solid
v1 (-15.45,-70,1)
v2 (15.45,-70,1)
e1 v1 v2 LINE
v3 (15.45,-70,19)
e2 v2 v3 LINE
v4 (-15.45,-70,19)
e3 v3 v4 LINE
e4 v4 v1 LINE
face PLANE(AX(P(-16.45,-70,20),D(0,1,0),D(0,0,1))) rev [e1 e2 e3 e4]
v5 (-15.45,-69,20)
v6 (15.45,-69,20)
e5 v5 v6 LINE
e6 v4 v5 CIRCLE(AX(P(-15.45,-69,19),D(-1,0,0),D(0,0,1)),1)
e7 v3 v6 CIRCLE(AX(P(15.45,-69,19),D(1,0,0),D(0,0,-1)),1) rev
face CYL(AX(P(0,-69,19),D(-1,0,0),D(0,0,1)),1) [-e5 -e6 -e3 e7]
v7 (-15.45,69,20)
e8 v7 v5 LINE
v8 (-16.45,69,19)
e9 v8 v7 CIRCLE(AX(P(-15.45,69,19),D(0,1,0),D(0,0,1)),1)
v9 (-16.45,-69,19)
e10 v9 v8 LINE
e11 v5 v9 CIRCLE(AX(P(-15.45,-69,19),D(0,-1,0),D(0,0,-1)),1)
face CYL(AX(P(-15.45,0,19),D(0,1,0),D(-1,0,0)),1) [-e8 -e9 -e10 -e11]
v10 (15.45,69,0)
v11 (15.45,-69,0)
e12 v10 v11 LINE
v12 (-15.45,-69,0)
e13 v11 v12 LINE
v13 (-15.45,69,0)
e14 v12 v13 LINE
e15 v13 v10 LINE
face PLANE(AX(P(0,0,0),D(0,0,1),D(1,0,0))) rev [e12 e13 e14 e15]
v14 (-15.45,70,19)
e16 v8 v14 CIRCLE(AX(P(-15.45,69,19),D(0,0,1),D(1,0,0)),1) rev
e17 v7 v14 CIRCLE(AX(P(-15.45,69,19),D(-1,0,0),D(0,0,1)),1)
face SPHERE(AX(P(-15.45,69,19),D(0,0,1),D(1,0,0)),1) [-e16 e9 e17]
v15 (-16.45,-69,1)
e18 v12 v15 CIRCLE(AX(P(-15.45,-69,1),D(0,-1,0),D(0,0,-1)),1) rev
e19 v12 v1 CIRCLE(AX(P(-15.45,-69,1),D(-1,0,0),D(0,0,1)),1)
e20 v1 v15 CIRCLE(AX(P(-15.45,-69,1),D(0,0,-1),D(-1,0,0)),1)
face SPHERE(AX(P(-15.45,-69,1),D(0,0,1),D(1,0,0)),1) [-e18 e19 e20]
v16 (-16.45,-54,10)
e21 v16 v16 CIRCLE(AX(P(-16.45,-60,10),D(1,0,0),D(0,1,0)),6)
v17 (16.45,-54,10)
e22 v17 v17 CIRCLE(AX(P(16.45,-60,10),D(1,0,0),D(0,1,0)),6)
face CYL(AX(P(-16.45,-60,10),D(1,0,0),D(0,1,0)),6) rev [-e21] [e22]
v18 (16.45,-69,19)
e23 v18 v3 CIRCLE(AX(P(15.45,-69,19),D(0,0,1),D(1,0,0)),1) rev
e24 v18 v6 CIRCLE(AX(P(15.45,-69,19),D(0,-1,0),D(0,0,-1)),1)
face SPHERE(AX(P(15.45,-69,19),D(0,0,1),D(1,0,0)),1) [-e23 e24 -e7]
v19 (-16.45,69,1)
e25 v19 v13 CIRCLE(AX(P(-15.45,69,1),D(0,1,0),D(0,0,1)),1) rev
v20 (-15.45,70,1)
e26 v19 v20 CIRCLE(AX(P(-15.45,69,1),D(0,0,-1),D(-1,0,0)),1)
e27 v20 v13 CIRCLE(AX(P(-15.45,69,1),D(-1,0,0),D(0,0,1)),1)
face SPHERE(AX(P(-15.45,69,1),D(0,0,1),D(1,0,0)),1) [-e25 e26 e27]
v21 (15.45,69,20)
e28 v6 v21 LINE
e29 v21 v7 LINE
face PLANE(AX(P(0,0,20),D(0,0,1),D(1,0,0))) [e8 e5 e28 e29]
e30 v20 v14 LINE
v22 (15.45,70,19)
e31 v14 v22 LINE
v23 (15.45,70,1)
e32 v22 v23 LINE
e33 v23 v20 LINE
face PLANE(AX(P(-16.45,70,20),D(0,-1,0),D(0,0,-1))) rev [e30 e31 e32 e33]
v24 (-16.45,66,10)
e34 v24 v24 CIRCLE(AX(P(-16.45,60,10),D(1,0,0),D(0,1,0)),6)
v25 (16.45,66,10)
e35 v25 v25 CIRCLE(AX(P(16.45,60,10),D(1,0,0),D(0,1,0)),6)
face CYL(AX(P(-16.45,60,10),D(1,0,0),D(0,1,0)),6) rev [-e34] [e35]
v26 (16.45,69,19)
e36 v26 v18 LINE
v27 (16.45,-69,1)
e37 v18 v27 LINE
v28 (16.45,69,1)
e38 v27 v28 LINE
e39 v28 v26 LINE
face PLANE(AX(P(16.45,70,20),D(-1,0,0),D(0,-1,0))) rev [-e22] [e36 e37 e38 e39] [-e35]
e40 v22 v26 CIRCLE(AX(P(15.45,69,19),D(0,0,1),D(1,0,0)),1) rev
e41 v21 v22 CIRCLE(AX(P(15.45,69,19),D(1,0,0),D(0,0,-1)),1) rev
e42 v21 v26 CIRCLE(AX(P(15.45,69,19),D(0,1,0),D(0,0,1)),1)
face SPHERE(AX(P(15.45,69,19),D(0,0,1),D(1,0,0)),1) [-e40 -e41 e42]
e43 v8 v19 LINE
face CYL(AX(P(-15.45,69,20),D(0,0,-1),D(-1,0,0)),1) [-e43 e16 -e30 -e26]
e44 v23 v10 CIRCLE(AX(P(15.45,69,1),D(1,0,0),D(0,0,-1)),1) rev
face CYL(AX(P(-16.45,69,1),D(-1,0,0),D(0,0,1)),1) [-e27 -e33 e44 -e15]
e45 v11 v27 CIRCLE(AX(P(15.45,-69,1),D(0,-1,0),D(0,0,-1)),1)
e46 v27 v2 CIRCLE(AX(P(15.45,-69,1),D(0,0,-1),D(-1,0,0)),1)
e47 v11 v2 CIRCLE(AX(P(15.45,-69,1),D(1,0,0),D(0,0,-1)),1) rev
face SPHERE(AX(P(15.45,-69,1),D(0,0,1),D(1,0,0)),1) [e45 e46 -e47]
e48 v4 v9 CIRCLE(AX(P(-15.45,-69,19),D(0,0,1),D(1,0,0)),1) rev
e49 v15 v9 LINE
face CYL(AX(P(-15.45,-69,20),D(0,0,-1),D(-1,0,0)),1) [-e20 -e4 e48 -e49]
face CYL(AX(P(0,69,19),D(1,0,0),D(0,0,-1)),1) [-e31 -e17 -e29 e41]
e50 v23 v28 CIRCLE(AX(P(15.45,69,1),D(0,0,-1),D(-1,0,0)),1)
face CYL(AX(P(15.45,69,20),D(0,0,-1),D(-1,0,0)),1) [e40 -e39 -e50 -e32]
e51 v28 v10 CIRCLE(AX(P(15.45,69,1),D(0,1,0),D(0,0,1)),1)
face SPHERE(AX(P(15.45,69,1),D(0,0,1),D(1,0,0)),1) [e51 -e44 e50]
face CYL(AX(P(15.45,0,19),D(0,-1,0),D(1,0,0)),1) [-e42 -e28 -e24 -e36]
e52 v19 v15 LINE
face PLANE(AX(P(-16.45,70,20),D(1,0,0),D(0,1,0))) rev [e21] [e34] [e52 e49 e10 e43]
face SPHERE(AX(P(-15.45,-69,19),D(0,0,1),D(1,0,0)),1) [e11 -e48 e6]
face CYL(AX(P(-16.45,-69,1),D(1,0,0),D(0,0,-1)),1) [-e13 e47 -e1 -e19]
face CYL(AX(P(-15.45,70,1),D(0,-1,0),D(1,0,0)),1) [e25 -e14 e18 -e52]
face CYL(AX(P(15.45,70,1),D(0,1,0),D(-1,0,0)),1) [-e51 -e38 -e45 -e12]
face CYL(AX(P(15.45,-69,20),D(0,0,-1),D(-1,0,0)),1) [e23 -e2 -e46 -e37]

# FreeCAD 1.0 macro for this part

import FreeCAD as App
import Part
import Sketcher
Q = App.Units.Quantity


def edges_at(feature, points):
    """Names of the edges that pass closest to the given points."""
    edges = feature.Shape.Edges
    near = lambda p: min(range(len(edges)), key=lambda i: edges[i].distToShape(Part.Vertex(*p))[0])
    return sorted({f"Edge{near(p) + 1}" for p in points})

doc = App.newDocument("Part")
params = doc.addObject("Spreadsheet::Sheet", "Params")
for row, (alias, value) in enumerate([
    ("sketch1_height", "140 mm"),
    ("sketch1_width", "32.9 mm"),
    ("pad1_length", "20 mm"),
    ("sketch2_diameter", "12 mm"),
    ("fillet_radius", "1 mm"),
], start=1):
    params.set(f"A{row}", alias)
    params.set(f"B{row}", "=" + value)
    params.setAlias(f"B{row}", alias)

body = doc.addObject("PartDesign::Body", "Body")

# Sketch on XY plane
sketch1 = body.newObject("Sketcher::SketchObject", "Sketch")
sketch1.AttachmentSupport = (doc.getObject("XY_Plane"), [""])
sketch1.MapMode = "FlatFace"
sketch1.addGeometry([
    Part.LineSegment(App.Vector(-16.45, 70, 0), App.Vector(-16.45, -70, 0)),
    Part.LineSegment(App.Vector(-16.45, -70, 0), App.Vector(16.45, -70, 0)),
    Part.LineSegment(App.Vector(16.45, -70, 0), App.Vector(16.45, 70, 0)),
    Part.LineSegment(App.Vector(16.45, 70, 0), App.Vector(-16.45, 70, 0)),
], False)
sketch1.addConstraint([
    Sketcher.Constraint("Coincident", 0, 2, 1, 1),
    Sketcher.Constraint("Coincident", 1, 2, 2, 1),
    Sketcher.Constraint("Coincident", 2, 2, 3, 1),
    Sketcher.Constraint("Coincident", 3, 2, 0, 1),
    Sketcher.Constraint("Vertical", 0),
    Sketcher.Constraint("Horizontal", 1),
    Sketcher.Constraint("Vertical", 2),
    Sketcher.Constraint("Horizontal", 3),
    Sketcher.Constraint("Symmetric", 0, 2, 2, 2, -1, 1),
    Sketcher.Constraint("DistanceY", 0, 2, 0, 1, Q("140 mm")),
    Sketcher.Constraint("DistanceX", 1, 1, 1, 2, Q("32.9 mm")),
])
sketch1.setExpression("Constraints[9]", "Params.sketch1_height")
sketch1.setExpression("Constraints[10]", "Params.sketch1_width")
pad1 = body.newObject("PartDesign::Pad", "Pad")
pad1.Profile = sketch1
pad1.setExpression("Length", "Params.pad1_length")

# Sketch on YZ plane
sketch2 = body.newObject("Sketcher::SketchObject", "Sketch001")
sketch2.AttachmentSupport = (doc.getObject("YZ_Plane"), [""])
sketch2.MapMode = "FlatFace"
sketch2.AttachmentOffset = App.Placement(App.Vector(0, 0, 16.45), App.Rotation())
sketch2.addGeometry([
    Part.Circle(App.Vector(60, 10, 0), App.Vector(0, 0, 1), 6),
    Part.Circle(App.Vector(-60, 10, 0), App.Vector(0, 0, 1), 6),
], False)
sketch2.addConstraint([
    Sketcher.Constraint("Equal", 0, 1),
    Sketcher.Constraint("Symmetric", 0, 3, 1, 3, -2),
    Sketcher.Constraint("Diameter", 0, Q("12 mm")),
    Sketcher.Constraint("DistanceX", -1, 1, 0, 3, Q("60 mm")),
    Sketcher.Constraint("DistanceY", -1, 1, 0, 3, Q("10 mm")),
])
sketch2.setExpression("Constraints[2]", "Params.sketch2_diameter")
pocket1 = body.newObject("PartDesign::Pocket", "Pocket")
pocket1.Profile = sketch2
pocket1.Type = "ThroughAll"
doc.recompute()

fillet = body.newObject("PartDesign::Fillet", "Fillet")
fillet.Base = (pocket1, edges_at(pocket1, [
    (-16.45, 0, 20),
    (0, -70, 20),
    (16.45, 0, 20),
    (0, -70, 0),
    (-16.45, 0, 0),
    (0, 70, 0),
    (16.45, 0, 0),
    (0, 70, 20),
    (16.45, -70, 10),
    (-16.45, -70, 10),
    (-16.45, 70, 10),
    (16.45, 70, 10),
]))
fillet.setExpression("Radius", "Params.fillet_radius")

doc.recompute()
